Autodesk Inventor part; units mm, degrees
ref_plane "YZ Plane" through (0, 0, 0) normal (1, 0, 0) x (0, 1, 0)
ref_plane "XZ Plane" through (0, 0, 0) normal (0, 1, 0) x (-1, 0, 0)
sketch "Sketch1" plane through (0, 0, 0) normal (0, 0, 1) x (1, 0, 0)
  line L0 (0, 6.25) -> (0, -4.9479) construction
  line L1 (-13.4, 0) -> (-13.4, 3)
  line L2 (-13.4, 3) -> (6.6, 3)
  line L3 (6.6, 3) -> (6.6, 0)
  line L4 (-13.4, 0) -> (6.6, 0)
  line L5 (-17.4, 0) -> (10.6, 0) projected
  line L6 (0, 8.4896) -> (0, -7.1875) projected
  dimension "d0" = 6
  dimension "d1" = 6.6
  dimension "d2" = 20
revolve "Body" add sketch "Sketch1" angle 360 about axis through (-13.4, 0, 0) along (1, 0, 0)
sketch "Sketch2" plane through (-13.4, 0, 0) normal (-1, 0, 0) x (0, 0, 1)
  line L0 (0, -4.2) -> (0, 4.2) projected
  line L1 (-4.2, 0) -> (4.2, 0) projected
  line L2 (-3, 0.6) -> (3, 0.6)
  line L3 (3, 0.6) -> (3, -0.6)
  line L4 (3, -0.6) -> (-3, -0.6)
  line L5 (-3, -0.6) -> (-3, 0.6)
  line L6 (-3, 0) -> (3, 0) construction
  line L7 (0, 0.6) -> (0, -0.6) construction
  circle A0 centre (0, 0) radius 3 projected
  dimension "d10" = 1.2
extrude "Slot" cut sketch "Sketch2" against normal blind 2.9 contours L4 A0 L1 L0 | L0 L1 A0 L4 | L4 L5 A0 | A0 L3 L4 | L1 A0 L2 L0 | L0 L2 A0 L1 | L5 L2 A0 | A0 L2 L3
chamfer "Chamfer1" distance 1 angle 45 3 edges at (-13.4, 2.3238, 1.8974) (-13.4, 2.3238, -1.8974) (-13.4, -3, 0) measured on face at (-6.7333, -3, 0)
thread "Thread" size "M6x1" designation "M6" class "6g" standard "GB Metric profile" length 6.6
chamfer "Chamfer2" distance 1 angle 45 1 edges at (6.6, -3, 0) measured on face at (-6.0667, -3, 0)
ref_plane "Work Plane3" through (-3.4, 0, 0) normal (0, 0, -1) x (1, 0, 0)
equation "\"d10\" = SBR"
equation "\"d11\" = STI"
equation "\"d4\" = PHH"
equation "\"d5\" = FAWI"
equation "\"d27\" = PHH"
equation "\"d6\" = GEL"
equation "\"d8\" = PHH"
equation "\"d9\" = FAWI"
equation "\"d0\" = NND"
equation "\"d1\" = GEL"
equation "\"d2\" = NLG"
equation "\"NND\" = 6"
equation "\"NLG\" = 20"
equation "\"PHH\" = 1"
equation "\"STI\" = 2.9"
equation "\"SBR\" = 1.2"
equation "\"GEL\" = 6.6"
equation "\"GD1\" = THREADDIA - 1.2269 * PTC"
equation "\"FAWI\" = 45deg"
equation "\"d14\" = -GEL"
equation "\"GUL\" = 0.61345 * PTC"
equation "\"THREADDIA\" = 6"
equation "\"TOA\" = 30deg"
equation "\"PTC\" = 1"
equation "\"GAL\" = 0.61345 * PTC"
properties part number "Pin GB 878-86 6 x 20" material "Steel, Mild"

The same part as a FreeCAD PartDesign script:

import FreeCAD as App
import Part
import Sketcher

V = App.Vector
Q = App.Units.Quantity


def edges_at(feature, points):
    """Names of the edges that pass closest to the given points."""
    edges = feature.Shape.Edges
    near = lambda p: min(range(len(edges)), key=lambda i: edges[i].distToShape(Part.Vertex(*p))[0])
    return sorted({f"Edge{near(p) + 1}" for p in points})

doc = App.newDocument("Part")
body = doc.addObject("PartDesign::Body", "Body")

# Sketch on XY plane
sketch1 = body.newObject("Sketcher::SketchObject", "Sketch")
sketch1.AttachmentSupport = (doc.getObject("XY_Plane"), [""])
sketch1.MapMode = "FlatFace"
sketch1.addGeometry([
    Part.LineSegment(V(-13.4, 3, 0), V(-13.4, 0, 0)),
    Part.LineSegment(V(-13.4, 0, 0), V(6.6, 0, 0)),
    Part.LineSegment(V(6.6, 0, 0), V(6.6, 3, 0)),
    Part.LineSegment(V(6.6, 3, 0), V(-13.4, 3, 0)),
], False)
sketch1.addConstraint([
    Sketcher.Constraint("Coincident", 0, 2, 1, 1),
    Sketcher.Constraint("Coincident", 1, 2, 2, 1),
    Sketcher.Constraint("Coincident", 2, 2, 3, 1),
    Sketcher.Constraint("Coincident", 3, 2, 0, 1),
    Sketcher.Constraint("Vertical", 0),
    Sketcher.Constraint("Horizontal", 1),
    Sketcher.Constraint("Vertical", 2),
    Sketcher.Constraint("Horizontal", 3),
    Sketcher.Constraint("PointOnObject", 0, 2, -1),
    Sketcher.Constraint("DistanceX", 1, 1, 1, 2, Q("20 mm")),
    Sketcher.Constraint("DistanceX", -1, 1, 1, 2, Q("6.6 mm")),
    Sketcher.Constraint("DistanceY", 0, 2, 0, 1, Q("3 mm")),
])
revolution = body.newObject("PartDesign::Revolution", "Revolution")
revolution.Profile = sketch1
revolution.ReferenceAxis = (sketch1, ["H_Axis"])
revolution.Angle = 360

# Sketch on YZ plane
sketch2 = body.newObject("Sketcher::SketchObject", "Sketch001")
sketch2.AttachmentSupport = (doc.getObject("YZ_Plane"), [""])
sketch2.MapMode = "FlatFace"
sketch2.AttachmentOffset = App.Placement(V(0, 0, -13.4), App.Rotation())
sketch2.addGeometry([
    Part.LineSegment(V(-0.6, 3, 0), V(0.6, 3, 0)),
    Part.LineSegment(V(0.6, 3, 0), V(0.6, -3, 0)),
    Part.LineSegment(V(0.6, -3, 0), V(-0.6, -3, 0)),
    Part.LineSegment(V(-0.6, -3, 0), V(-0.6, 3, 0)),
], False)
sketch2.addConstraint([
    Sketcher.Constraint("Coincident", 0, 2, 1, 1),
    Sketcher.Constraint("Coincident", 1, 2, 2, 1),
    Sketcher.Constraint("Coincident", 2, 2, 3, 1),
    Sketcher.Constraint("Coincident", 3, 2, 0, 1),
    Sketcher.Constraint("Horizontal", 0),
    Sketcher.Constraint("Vertical", 1),
    Sketcher.Constraint("Horizontal", 2),
    Sketcher.Constraint("Vertical", 3),
    Sketcher.Constraint("Symmetric", 0, 2, 2, 2, -1, 1),
    Sketcher.Constraint("DistanceX", 0, 1, 0, 2, Q("1.2 mm")),
    Sketcher.Constraint("DistanceY", 1, 2, 1, 1, Q("6 mm")),
])
pocket1 = body.newObject("PartDesign::Pocket", "Pocket")
pocket1.Profile = sketch2
pocket1.Length = 2.9
pocket1.Reversed = True
doc.recompute()

chamfer = body.newObject("PartDesign::Chamfer", "Chamfer")
chamfer.Base = (pocket1, edges_at(pocket1, [(-13.4, 2.324, 1.897), (-13.4, 2.324, -1.897), (-13.4, -3, 0)]))
chamfer.Size = 1
doc.recompute()

chamfer2 = body.newObject("PartDesign::Chamfer", "Chamfer001")
chamfer2.Base = (chamfer, edges_at(chamfer, [(6.6, -3, 0)]))
chamfer2.Size = 1

doc.recompute()
